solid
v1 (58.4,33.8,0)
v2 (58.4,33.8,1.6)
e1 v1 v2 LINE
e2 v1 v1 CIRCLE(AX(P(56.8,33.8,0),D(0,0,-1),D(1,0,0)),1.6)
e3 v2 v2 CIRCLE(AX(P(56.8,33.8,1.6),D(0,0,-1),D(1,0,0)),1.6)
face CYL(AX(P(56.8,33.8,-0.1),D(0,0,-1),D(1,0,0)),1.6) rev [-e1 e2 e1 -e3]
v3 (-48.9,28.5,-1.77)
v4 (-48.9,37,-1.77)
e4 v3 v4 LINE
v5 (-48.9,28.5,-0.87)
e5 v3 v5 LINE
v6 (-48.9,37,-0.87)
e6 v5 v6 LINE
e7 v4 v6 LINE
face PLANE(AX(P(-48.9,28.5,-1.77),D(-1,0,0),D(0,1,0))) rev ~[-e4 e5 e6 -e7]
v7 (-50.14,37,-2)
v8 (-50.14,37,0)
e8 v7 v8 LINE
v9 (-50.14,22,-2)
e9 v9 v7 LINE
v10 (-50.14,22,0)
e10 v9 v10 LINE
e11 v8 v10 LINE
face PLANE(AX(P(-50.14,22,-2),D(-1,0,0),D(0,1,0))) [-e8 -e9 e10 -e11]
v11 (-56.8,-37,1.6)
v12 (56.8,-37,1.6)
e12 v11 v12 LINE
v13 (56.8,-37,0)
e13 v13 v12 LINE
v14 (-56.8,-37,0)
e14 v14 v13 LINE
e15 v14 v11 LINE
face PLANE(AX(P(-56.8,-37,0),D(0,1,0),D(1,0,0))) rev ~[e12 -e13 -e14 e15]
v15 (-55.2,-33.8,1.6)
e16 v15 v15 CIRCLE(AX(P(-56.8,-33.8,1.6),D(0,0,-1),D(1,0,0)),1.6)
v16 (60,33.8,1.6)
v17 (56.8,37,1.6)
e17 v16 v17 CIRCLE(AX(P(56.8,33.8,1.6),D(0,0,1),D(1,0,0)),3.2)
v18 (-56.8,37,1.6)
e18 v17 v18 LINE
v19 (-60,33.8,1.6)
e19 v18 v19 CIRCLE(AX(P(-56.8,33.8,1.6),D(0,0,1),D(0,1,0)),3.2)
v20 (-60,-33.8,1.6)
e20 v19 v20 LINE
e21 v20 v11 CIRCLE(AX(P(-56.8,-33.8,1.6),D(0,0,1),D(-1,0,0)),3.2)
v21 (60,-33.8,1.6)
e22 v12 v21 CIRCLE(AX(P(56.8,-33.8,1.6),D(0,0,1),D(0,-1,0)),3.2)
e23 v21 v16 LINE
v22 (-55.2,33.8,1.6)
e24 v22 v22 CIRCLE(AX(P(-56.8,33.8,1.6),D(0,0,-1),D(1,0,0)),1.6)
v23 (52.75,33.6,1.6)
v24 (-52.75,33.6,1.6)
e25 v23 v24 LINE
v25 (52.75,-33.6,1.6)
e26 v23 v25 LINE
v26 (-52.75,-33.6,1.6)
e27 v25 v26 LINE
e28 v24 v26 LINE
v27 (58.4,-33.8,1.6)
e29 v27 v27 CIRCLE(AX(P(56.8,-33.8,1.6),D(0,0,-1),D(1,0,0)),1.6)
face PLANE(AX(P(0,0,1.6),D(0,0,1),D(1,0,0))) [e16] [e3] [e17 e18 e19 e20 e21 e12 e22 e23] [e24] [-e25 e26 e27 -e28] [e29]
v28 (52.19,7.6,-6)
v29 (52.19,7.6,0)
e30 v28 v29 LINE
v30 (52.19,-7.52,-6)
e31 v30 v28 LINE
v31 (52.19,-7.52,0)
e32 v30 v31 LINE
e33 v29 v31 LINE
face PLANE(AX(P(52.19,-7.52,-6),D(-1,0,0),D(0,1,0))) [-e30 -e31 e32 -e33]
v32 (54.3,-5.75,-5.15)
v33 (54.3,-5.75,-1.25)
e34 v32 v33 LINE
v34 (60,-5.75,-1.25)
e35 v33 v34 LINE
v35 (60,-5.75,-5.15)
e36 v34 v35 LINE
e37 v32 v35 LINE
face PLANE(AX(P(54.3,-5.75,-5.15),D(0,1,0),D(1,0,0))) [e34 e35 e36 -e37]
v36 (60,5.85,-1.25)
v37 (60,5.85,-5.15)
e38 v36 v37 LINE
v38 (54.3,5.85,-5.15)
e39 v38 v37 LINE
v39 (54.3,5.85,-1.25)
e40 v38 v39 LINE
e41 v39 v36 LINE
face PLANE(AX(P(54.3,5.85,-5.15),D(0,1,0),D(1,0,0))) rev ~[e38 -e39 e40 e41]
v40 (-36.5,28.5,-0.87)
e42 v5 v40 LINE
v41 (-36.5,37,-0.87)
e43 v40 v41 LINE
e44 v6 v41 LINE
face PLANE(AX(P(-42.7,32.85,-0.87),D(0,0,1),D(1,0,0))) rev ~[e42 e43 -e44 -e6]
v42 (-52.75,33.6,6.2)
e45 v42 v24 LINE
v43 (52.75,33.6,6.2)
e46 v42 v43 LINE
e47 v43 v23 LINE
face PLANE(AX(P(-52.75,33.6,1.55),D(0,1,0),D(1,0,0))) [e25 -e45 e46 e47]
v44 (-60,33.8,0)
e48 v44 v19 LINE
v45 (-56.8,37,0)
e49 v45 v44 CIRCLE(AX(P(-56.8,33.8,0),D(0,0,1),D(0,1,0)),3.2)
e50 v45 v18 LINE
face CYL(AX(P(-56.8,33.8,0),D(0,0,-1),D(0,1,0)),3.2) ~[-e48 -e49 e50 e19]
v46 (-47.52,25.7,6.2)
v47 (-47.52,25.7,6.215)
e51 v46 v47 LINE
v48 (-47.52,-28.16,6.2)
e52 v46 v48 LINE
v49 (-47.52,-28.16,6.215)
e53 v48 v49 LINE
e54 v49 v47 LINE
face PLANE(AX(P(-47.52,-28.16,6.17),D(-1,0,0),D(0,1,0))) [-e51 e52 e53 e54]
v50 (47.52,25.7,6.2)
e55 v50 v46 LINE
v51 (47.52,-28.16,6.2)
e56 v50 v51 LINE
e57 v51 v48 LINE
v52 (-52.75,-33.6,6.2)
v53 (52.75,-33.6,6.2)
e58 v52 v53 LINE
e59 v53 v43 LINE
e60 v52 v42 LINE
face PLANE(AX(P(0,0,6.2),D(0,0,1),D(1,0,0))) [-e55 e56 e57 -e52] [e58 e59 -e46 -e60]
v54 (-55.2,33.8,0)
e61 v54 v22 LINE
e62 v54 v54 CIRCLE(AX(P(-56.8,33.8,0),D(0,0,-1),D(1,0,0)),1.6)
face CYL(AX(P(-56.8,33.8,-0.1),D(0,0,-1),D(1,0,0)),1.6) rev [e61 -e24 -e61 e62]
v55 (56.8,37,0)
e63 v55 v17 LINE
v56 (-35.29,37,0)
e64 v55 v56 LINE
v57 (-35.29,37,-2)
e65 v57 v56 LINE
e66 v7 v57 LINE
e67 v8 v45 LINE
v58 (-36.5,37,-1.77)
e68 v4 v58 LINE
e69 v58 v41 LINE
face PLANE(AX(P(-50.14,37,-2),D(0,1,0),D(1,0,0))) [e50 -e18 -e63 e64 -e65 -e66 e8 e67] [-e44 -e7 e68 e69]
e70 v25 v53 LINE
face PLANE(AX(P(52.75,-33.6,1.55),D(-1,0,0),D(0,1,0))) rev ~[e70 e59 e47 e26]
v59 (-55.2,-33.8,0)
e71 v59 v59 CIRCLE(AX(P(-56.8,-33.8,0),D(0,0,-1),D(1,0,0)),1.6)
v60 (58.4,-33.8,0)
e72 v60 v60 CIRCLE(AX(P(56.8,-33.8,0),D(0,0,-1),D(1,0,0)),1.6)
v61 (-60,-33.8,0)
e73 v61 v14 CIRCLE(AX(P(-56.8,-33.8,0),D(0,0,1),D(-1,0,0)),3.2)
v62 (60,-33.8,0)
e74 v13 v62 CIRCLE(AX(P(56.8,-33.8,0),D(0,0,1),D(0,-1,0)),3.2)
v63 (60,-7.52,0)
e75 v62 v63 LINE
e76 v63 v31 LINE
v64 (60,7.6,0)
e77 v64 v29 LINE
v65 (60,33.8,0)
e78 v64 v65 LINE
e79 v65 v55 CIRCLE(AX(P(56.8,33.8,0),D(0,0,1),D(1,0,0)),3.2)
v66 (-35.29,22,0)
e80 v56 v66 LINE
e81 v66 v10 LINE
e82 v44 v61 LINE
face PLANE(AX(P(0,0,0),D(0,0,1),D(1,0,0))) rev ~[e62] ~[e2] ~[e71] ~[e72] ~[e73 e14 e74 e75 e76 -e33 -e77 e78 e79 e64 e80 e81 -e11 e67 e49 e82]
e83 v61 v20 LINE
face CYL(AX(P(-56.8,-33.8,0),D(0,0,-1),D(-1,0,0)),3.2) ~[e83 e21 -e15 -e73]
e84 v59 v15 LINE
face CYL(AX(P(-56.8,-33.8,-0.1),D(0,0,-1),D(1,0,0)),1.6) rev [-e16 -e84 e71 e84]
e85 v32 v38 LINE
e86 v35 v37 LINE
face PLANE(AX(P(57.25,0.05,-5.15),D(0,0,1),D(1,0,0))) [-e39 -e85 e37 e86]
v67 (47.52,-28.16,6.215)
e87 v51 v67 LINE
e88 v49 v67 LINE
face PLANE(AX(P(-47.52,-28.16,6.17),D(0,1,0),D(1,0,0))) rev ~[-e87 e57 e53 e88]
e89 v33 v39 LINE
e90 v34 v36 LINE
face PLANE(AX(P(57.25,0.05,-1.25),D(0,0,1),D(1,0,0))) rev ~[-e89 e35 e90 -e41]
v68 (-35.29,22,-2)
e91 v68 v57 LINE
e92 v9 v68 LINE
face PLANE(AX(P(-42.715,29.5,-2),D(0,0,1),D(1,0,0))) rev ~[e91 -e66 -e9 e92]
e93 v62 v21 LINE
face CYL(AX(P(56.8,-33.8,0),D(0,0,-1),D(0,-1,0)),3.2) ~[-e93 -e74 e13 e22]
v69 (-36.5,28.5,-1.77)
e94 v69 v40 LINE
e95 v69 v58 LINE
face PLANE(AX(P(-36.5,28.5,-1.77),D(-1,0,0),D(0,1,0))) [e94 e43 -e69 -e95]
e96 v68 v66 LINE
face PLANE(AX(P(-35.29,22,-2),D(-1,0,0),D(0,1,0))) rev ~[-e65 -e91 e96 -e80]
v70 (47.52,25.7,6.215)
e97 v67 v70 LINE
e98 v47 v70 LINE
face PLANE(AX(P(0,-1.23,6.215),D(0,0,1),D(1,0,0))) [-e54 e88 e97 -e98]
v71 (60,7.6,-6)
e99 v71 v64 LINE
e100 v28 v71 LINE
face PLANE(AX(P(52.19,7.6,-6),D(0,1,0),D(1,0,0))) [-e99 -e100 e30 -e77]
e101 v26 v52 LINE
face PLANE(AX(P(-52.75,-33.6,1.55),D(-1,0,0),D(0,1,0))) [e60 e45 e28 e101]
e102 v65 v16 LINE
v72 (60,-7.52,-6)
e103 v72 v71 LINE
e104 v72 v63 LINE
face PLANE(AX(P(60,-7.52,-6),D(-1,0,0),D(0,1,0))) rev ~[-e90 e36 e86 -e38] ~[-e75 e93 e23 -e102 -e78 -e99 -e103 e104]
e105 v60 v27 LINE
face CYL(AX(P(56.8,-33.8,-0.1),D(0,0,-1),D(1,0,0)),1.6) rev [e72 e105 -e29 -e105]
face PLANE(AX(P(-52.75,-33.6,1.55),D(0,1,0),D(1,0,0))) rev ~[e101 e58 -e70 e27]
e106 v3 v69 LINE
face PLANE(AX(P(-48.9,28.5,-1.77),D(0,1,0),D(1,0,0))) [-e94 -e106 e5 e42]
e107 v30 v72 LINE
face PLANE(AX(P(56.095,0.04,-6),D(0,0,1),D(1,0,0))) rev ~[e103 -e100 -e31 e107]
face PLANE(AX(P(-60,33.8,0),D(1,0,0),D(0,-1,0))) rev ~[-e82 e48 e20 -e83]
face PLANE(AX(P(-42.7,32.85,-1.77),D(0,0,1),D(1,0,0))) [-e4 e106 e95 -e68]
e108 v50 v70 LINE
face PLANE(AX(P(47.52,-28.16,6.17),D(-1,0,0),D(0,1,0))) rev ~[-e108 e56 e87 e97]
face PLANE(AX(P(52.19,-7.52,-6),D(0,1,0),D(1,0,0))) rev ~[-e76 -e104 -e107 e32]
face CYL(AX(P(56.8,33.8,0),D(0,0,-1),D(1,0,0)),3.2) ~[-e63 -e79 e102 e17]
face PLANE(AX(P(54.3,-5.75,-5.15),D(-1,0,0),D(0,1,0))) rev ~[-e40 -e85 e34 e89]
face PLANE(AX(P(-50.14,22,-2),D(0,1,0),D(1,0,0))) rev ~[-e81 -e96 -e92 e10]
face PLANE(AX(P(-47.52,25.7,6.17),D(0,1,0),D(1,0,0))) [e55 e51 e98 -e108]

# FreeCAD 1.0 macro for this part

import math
import FreeCAD as App
import Part
import Sketcher
from FreeCAD import Vector


def add_polygon(sketch, points):
    """Adds a closed chain of lines whose ends are joined by coincident constraints."""
    first, n = sketch.GeometryCount, len(points)
    for a, b in zip(points, points[1:] + points[:1]):
        sketch.addGeometry(Part.LineSegment(App.Vector(*a, 0), App.Vector(*b, 0)), False)
    for i in range(n):
        sketch.addConstraint(Sketcher.Constraint("Coincident", first + i, 2, first + (i + 1) % n, 1))

doc = App.newDocument("Part")
body = doc.addObject("PartDesign::Body", "Body")

sketch1 = doc.addObject("Sketcher::SketchObject", "Sketch")
body.addObject(sketch1)
sketch1.AttachmentSupport = (doc.XY_Plane, [""])
sketch1.MapMode = "FlatFace"
sketch1.addGeometry([
    Part.LineSegment(Vector(-56.8, -37, 0), Vector(56.8, -37, 0)),
    Part.ArcOfCircle(Part.Circle(Vector(56.8, -33.8, 0), Vector(0, 0, 1), 3.2), math.radians(-90), math.radians(0)),
    Part.LineSegment(Vector(60, -33.8, 0), Vector(60, 33.8, 0)),
    Part.ArcOfCircle(Part.Circle(Vector(56.8, 33.8, 0), Vector(0, 0, 1), 3.2), math.radians(0), math.radians(90)),
    Part.LineSegment(Vector(56.8, 37, 0), Vector(-56.8, 37, 0)),
    Part.ArcOfCircle(Part.Circle(Vector(-56.8, 33.8, 0), Vector(0, 0, 1), 3.2), math.radians(90), math.radians(180)),
    Part.LineSegment(Vector(-60, 33.8, 0), Vector(-60, -33.8, 0)),
    Part.ArcOfCircle(Part.Circle(Vector(-56.8, -33.8, 0), Vector(0, 0, 1), 3.2), math.radians(180), math.radians(270)),
], False)
sketch1.addConstraint([
    Sketcher.Constraint("Tangent", 0, 2, 1, 1),
    Sketcher.Constraint("Tangent", 1, 2, 2, 1),
    Sketcher.Constraint("Tangent", 2, 2, 3, 1),
    Sketcher.Constraint("Tangent", 3, 2, 4, 1),
    Sketcher.Constraint("Tangent", 4, 2, 5, 1),
    Sketcher.Constraint("Tangent", 5, 2, 6, 1),
    Sketcher.Constraint("Tangent", 6, 2, 7, 1),
    Sketcher.Constraint("Tangent", 7, 2, 0, 1),
    Sketcher.Constraint("Horizontal", 0),
    Sketcher.Constraint("Vertical", 2),
    Sketcher.Constraint("Horizontal", 4),
    Sketcher.Constraint("Vertical", 6),
    Sketcher.Constraint("Equal", 1, 3),
    Sketcher.Constraint("Equal", 3, 5),
    Sketcher.Constraint("Equal", 5, 7),
    Sketcher.Constraint("Symmetric", 1, 3, 5, 3, -1, 1),
    Sketcher.Constraint("Radius", 1, 3.2),
    Sketcher.Constraint("DistanceX", 0, 1, 0, 2, 113.6),
    Sketcher.Constraint("DistanceY", 2, 1, 2, 2, 67.6),
])
pad1 = doc.addObject("PartDesign::Pad", "Pad")
body.addObject(pad1)
pad1.Profile = sketch1
pad1.Length = 1.6

sketch2 = doc.addObject("Sketcher::SketchObject", "Sketch001")
body.addObject(sketch2)
sketch2.AttachmentSupport = (doc.XY_Plane, [""])
sketch2.MapMode = "FlatFace"
sketch2.AttachmentOffset = App.Placement(Vector(0, 0, -0.1), App.Rotation())
sketch2.addGeometry([
    Part.Circle(Vector(-56.8, -33.8, 0), Vector(0, 0, 1), 1.6),
    Part.Circle(Vector(-56.8, 33.8, 0), Vector(0, 0, 1), 1.6),
    Part.Circle(Vector(56.8, -33.8, 0), Vector(0, 0, 1), 1.6),
    Part.Circle(Vector(56.8, 33.8, 0), Vector(0, 0, 1), 1.6),
], False)
sketch2.addConstraint([
    Sketcher.Constraint("Equal", 0, 1),
    Sketcher.Constraint("Equal", 1, 2),
    Sketcher.Constraint("Equal", 2, 3),
    Sketcher.Constraint("Symmetric", 1, 3, 2, 3, -1, 1),
    Sketcher.Constraint("Symmetric", 0, 3, 3, 3, -1, 1),
    Sketcher.Constraint("Symmetric", 0, 3, 2, 3, -2),
    Sketcher.Constraint("Diameter", 0, 3.2),
    Sketcher.Constraint("DistanceX", 0, 3, -1, 1, 56.8),
    Sketcher.Constraint("DistanceY", 0, 3, -1, 1, 33.8),
])
pocket1 = doc.addObject("PartDesign::Pocket", "Pocket")
body.addObject(pocket1)
pocket1.Profile = sketch2
pocket1.Length = 1.8
pocket1.Reversed = True

sketch3 = doc.addObject("Sketcher::SketchObject", "Sketch002")
body.addObject(sketch3)
sketch3.AttachmentSupport = (doc.XY_Plane, [""])
sketch3.MapMode = "FlatFace"
sketch3.AttachmentOffset = App.Placement(Vector(0, 0, 1.55), App.Rotation())
add_polygon(sketch3, [(-53, 34), (-53, -34), (53, -34), (53, 34)])
sketch3.addConstraint([
    Sketcher.Constraint("Vertical", 0),
    Sketcher.Constraint("Horizontal", 1),
    Sketcher.Constraint("Vertical", 2),
    Sketcher.Constraint("Horizontal", 3),
    Sketcher.Constraint("Symmetric", 0, 2, 2, 2, -1, 1),
    Sketcher.Constraint("DistanceX", 1, 1, 1, 2, 105.5),
    Sketcher.Constraint("DistanceY", 0, 2, 0, 1, 67.2),
])
pad2 = doc.addObject("PartDesign::Pad", "Pad001")
body.addObject(pad2)
pad2.Profile = sketch3
pad2.Length = 3.45

sketch4 = doc.addObject("Sketcher::SketchObject", "Sketch003")
body.addObject(sketch4)
sketch4.AttachmentSupport = (doc.XY_Plane, [""])
sketch4.MapMode = "FlatFace"
sketch4.AttachmentOffset = App.Placement(Vector(0, 0, 4.98), App.Rotation())
add_polygon(sketch4, [(-53, 34), (-53, -34), (53, -34), (53, 34)])
sketch4.addConstraint([
    Sketcher.Constraint("Vertical", 0),
    Sketcher.Constraint("Horizontal", 1),
    Sketcher.Constraint("Vertical", 2),
    Sketcher.Constraint("Horizontal", 3),
    Sketcher.Constraint("Symmetric", 0, 2, 2, 2, -1, 1),
    Sketcher.Constraint("DistanceX", 1, 1, 1, 2, 105.5),
    Sketcher.Constraint("DistanceY", 0, 2, 0, 1, 67.2),
])
pad3 = doc.addObject("PartDesign::Pad", "Pad002")
body.addObject(pad3)
pad3.Profile = sketch4
pad3.Length = 1.22

sketch5 = doc.addObject("Sketcher::SketchObject", "Sketch004")
body.addObject(sketch5)
sketch5.AttachmentSupport = (doc.XY_Plane, [""])
sketch5.MapMode = "FlatFace"
sketch5.AttachmentOffset = App.Placement(Vector(0, 0, 6.17), App.Rotation())
add_polygon(sketch5, [(-48, 26), (-48, -28), (48, -28), (48, 26)])
sketch5.addConstraint([
    Sketcher.Constraint("Vertical", 0),
    Sketcher.Constraint("Horizontal", 1),
    Sketcher.Constraint("Vertical", 2),
    Sketcher.Constraint("Horizontal", 3),
    Sketcher.Constraint("DistanceX", 1, 1, 1, 2, 95.04),
    Sketcher.Constraint("DistanceY", 0, 2, 0, 1, 53.86),
    Sketcher.Constraint("DistanceY", -1, 1, 2, 2, 25.7),
    Sketcher.Constraint("DistanceX", 0, 2, -1, 1, 47.52),
])
pad4 = doc.addObject("PartDesign::Pad", "Pad003")
body.addObject(pad4)
pad4.Profile = sketch5
pad4.Length = 0.045

sketch6 = doc.addObject("Sketcher::SketchObject", "Sketch005")
body.addObject(sketch6)
sketch6.AttachmentSupport = (doc.XY_Plane, [""])
sketch6.MapMode = "FlatFace"
sketch6.AttachmentOffset = App.Placement(Vector(0, 0, -6), App.Rotation())
add_polygon(sketch6, [(52, 8), (52, -8), (60, -8), (60, 8)])
sketch6.addConstraint([
    Sketcher.Constraint("Vertical", 0),
    Sketcher.Constraint("Horizontal", 1),
    Sketcher.Constraint("Vertical", 2),
    Sketcher.Constraint("Horizontal", 3),
    Sketcher.Constraint("DistanceX", -1, 1, 1, 2, 60.0),
    Sketcher.Constraint("DistanceX", 1, 1, 1, 2, 7.81),
    Sketcher.Constraint("DistanceY", 0, 2, 0, 1, 15.12),
    Sketcher.Constraint("DistanceY", -1, 1, 2, 2, 7.6),
])
pad5 = doc.addObject("PartDesign::Pad", "Pad004")
body.addObject(pad5)
pad5.Profile = sketch6
pad5.Length = 6.05

sketch7 = doc.addObject("Sketcher::SketchObject", "Sketch006")
body.addObject(sketch7)
sketch7.AttachmentSupport = (doc.XY_Plane, [""])
sketch7.MapMode = "FlatFace"
sketch7.AttachmentOffset = App.Placement(Vector(0, 0, -5.15), App.Rotation())
add_polygon(sketch7, [(54, 6), (54, -6), (60, -6), (60, 6)])
sketch7.addConstraint([
    Sketcher.Constraint("Vertical", 0),
    Sketcher.Constraint("Horizontal", 1),
    Sketcher.Constraint("Vertical", 2),
    Sketcher.Constraint("Horizontal", 3),
    Sketcher.Constraint("DistanceX", 1, 1, 1, 2, 5.9),
    Sketcher.Constraint("DistanceY", 0, 2, 0, 1, 11.6),
    Sketcher.Constraint("DistanceX", -1, 1, 0, 2, 54.3),
    Sketcher.Constraint("DistanceY", 0, 2, -1, 1, 5.75),
])
pocket2 = doc.addObject("PartDesign::Pocket", "Pocket001")
body.addObject(pocket2)
pocket2.Profile = sketch7
pocket2.Length = 3.9
pocket2.Reversed = True

sketch8 = doc.addObject("Sketcher::SketchObject", "Sketch007")
body.addObject(sketch8)
sketch8.AttachmentSupport = (doc.XY_Plane, [""])
sketch8.MapMode = "FlatFace"
sketch8.AttachmentOffset = App.Placement(Vector(0, 0, -2), App.Rotation())
add_polygon(sketch8, [(-50, 37), (-50, 22), (-35, 22), (-35, 37)])
sketch8.addConstraint([
    Sketcher.Constraint("Vertical", 0),
    Sketcher.Constraint("Horizontal", 1),
    Sketcher.Constraint("Vertical", 2),
    Sketcher.Constraint("Horizontal", 3),
    Sketcher.Constraint("DistanceY", 0, 2, 0, 1, 15.0),
    Sketcher.Constraint("DistanceY", -1, 1, 0, 2, 22.0),
    Sketcher.Constraint("DistanceX", 1, 1, 1, 2, 14.85),
    Sketcher.Constraint("DistanceX", 0, 2, -1, 1, 50.14),
])
pad6 = doc.addObject("PartDesign::Pad", "Pad005")
body.addObject(pad6)
pad6.Profile = sketch8
pad6.Length = 2.05

sketch9 = doc.addObject("Sketcher::SketchObject", "Sketch008")
body.addObject(sketch9)
sketch9.AttachmentSupport = (doc.XY_Plane, [""])
sketch9.MapMode = "FlatFace"
sketch9.AttachmentOffset = App.Placement(Vector(0, 0, -1.77), App.Rotation())
add_polygon(sketch9, [(-49, 37), (-49, 28), (-36, 28), (-36, 37)])
sketch9.addConstraint([
    Sketcher.Constraint("Vertical", 0),
    Sketcher.Constraint("Horizontal", 1),
    Sketcher.Constraint("Vertical", 2),
    Sketcher.Constraint("Horizontal", 3),
    Sketcher.Constraint("DistanceX", 1, 1, 1, 2, 12.4),
    Sketcher.Constraint("DistanceY", 0, 2, 0, 1, 8.7),
    Sketcher.Constraint("DistanceX", 0, 2, -1, 1, 48.9),
    Sketcher.Constraint("DistanceY", -1, 1, 0, 2, 28.5),
])
pocket3 = doc.addObject("PartDesign::Pocket", "Pocket002")
body.addObject(pocket3)
pocket3.Profile = sketch9
pocket3.Length = 0.9
pocket3.Reversed = True

doc.recompute()
